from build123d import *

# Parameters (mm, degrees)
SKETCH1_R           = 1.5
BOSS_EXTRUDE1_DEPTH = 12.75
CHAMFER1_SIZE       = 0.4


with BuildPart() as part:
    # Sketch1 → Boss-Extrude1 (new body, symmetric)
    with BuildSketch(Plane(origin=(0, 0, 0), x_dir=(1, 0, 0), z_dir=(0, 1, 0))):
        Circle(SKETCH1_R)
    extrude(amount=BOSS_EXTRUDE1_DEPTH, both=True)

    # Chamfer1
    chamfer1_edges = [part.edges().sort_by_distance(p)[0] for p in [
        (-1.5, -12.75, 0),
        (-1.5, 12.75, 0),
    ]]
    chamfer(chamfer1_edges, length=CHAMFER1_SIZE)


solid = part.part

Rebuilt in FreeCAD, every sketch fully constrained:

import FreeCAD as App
import Part
import Sketcher
from FreeCAD import Vector


def edges_at(feature, points):
    """Names of the edges that pass closest to the given points."""
    edges = feature.Shape.Edges
    near = lambda p: min(range(len(edges)), key=lambda i: edges[i].distToShape(Part.Vertex(*p))[0])
    return sorted({f"Edge{near(p) + 1}" for p in points})

doc = App.newDocument("Part")
body = doc.addObject("PartDesign::Body", "Body")

# Sketch on XZ plane
sketch1 = body.newObject("Sketcher::SketchObject", "Sketch")
sketch1.AttachmentSupport = (doc.getObject("XZ_Plane"), [""])
sketch1.MapMode = "FlatFace"
sketch1.addGeometry(Part.Circle(Vector(0, 0, 0), Vector(0, 0, 1), 1.5), False)
sketch1.addConstraint([
    Sketcher.Constraint("Coincident", 0, 3, -1, 1),
    Sketcher.Constraint("Diameter", 0, 3.0),
])
pad1 = body.newObject("PartDesign::Pad", "Pad")
pad1.Profile = sketch1
pad1.Length = 25.5
pad1.Midplane = True
doc.recompute()

chamfer = body.newObject("PartDesign::Chamfer", "Chamfer")
chamfer.Base = (pad1, edges_at(pad1, [(-1.5, -12.75, 0), (-1.5, 12.75, 0)]))
chamfer.Size = 0.4

doc.recompute()
